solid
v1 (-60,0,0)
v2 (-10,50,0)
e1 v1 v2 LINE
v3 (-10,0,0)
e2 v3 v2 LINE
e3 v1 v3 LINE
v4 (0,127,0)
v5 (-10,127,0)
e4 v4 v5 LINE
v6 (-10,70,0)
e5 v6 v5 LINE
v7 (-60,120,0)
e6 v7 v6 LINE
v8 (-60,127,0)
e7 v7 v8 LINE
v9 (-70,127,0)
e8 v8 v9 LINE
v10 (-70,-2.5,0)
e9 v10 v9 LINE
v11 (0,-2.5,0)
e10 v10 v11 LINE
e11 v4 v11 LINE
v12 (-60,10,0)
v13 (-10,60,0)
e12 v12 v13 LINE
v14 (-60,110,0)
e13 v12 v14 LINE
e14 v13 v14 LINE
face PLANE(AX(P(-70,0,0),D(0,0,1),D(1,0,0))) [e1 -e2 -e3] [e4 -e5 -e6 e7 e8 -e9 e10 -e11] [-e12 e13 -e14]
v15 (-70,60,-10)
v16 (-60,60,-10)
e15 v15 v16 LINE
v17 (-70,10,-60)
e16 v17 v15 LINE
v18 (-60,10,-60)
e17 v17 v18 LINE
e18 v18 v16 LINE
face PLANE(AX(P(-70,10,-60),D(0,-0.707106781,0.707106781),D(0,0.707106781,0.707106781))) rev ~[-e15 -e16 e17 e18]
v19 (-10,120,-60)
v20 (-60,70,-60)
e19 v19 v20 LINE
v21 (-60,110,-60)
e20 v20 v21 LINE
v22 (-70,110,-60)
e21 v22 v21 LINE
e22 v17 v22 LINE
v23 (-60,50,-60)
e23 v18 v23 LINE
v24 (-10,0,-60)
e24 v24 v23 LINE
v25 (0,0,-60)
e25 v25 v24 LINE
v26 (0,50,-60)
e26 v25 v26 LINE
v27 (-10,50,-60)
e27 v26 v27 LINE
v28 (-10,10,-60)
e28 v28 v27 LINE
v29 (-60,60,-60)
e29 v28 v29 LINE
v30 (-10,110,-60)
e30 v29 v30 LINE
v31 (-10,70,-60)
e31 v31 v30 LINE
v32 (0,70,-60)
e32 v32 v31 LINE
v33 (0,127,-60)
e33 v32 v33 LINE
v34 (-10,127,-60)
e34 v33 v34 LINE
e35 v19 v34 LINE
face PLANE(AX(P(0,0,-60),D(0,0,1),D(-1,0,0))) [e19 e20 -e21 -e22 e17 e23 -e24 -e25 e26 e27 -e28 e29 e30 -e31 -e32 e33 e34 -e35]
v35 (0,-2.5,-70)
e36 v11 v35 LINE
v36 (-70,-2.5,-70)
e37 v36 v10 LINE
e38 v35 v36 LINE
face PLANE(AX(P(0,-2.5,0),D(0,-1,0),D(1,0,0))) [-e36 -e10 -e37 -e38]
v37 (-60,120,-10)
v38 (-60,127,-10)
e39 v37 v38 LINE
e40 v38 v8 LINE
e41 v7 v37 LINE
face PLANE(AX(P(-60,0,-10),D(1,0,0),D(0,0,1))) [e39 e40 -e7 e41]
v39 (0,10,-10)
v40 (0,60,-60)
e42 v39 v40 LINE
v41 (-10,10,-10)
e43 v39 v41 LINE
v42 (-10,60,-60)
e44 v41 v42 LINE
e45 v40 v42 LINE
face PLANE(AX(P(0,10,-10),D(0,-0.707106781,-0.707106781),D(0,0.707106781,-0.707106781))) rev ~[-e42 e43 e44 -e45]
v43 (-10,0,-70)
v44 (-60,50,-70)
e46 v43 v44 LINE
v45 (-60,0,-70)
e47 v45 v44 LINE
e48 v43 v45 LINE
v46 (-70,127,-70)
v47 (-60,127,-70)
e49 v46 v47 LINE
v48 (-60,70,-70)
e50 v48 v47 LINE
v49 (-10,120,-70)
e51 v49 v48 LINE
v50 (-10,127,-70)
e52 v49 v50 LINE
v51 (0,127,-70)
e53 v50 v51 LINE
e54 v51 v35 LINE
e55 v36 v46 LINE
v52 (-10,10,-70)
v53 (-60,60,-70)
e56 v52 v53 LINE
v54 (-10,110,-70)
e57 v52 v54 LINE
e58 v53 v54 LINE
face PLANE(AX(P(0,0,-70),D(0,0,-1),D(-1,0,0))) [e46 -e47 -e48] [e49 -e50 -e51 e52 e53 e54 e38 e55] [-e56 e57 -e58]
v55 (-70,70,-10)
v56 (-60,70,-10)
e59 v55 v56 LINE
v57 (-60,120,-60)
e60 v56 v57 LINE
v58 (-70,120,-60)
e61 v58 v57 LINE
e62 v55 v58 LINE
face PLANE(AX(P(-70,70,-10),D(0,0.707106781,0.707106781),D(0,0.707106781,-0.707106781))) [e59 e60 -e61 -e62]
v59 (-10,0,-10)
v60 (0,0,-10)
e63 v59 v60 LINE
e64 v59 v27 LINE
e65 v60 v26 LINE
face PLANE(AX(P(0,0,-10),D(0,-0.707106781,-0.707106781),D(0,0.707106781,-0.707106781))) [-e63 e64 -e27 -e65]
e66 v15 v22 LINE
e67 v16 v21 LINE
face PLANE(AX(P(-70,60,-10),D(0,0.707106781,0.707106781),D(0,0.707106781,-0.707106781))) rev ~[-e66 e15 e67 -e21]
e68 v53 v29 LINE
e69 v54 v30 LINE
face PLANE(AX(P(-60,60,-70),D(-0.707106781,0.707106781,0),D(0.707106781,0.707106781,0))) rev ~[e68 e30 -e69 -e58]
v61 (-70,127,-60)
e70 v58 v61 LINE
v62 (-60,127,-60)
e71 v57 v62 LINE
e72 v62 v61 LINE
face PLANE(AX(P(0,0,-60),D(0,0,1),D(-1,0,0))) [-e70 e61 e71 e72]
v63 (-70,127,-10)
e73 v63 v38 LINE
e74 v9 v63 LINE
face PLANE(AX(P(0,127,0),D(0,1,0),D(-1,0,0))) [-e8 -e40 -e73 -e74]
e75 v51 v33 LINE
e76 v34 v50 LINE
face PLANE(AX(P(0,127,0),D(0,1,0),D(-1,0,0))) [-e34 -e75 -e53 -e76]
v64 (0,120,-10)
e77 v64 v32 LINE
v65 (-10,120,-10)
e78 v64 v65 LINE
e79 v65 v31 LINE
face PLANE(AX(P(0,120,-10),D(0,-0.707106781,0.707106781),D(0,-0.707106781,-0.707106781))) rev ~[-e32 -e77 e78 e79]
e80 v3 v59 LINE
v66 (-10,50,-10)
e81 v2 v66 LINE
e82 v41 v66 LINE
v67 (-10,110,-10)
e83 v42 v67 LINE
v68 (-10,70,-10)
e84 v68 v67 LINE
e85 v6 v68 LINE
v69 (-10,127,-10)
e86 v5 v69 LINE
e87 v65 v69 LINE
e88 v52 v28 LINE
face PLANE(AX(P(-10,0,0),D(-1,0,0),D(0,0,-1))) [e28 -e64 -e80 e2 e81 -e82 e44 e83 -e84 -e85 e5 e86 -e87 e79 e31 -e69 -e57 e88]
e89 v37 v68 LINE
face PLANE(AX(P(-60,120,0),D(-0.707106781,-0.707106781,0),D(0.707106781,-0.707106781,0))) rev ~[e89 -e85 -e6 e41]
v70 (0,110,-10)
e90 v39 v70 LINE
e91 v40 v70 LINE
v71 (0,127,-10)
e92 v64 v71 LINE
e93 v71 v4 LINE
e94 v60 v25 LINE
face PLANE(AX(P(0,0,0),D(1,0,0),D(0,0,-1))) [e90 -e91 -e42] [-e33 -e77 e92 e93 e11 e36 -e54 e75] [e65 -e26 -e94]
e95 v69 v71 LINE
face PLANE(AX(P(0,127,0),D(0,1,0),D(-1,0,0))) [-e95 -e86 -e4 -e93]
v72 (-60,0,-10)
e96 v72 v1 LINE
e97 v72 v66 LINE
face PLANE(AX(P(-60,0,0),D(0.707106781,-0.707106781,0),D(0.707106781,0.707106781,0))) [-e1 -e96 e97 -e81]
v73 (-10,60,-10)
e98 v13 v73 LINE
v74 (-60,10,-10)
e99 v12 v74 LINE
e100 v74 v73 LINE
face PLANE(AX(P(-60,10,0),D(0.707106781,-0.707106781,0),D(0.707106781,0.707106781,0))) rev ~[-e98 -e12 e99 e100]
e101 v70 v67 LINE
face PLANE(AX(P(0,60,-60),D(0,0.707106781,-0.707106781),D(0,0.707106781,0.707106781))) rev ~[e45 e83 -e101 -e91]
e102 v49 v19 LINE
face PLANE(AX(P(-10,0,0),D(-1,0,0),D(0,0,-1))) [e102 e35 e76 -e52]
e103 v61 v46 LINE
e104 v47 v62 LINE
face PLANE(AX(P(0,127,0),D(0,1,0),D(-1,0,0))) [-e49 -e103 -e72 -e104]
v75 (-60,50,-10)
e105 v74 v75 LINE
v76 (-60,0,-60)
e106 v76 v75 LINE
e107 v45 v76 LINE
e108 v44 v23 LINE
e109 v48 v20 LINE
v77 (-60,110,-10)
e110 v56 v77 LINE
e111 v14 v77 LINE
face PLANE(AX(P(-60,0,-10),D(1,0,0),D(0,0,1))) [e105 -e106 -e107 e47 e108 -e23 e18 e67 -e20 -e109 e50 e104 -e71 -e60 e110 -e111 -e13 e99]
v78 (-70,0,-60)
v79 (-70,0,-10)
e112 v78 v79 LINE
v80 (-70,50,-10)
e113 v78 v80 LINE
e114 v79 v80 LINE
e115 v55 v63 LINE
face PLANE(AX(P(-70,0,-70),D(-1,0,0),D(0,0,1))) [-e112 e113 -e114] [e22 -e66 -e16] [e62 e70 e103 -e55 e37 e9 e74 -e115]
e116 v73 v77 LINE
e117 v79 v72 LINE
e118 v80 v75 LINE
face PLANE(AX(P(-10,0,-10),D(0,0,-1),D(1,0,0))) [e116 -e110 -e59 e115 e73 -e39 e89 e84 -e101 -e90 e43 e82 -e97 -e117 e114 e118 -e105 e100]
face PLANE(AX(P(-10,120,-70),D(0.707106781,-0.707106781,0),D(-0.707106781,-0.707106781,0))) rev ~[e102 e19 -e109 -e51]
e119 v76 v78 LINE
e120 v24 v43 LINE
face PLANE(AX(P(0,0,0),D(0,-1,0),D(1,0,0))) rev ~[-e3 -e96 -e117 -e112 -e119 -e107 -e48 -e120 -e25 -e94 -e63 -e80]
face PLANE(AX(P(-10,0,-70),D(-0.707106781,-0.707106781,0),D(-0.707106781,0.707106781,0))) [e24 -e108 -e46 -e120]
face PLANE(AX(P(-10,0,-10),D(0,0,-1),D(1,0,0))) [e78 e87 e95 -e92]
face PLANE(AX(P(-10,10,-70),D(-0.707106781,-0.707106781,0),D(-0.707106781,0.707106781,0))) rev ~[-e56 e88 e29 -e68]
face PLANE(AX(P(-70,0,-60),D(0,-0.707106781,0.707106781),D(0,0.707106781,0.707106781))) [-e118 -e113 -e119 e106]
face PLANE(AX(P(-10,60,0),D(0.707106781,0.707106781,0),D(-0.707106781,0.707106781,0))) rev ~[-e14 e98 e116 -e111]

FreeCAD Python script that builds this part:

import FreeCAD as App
import Part
import Sketcher


def add_polygon(sketch, points):
    """Adds a closed chain of lines whose ends are joined by coincident constraints."""
    first, n = sketch.GeometryCount, len(points)
    for a, b in zip(points, points[1:] + points[:1]):
        sketch.addGeometry(Part.LineSegment(App.Vector(*a, 0), App.Vector(*b, 0)), False)
    for i in range(n):
        sketch.addConstraint(Sketcher.Constraint("Coincident", first + i, 2, first + (i + 1) % n, 1))

doc = App.newDocument("Part")
body = doc.addObject("PartDesign::Body", "Body")
body.AllowCompound = True

sketch1 = body.newObject("Sketcher::SketchObject", "Sketch")
sketch1.AttachmentSupport = (doc.getObject("XZ_Plane"), [""])
sketch1.MapMode = "FlatFace"
add_polygon(sketch1, [(-10, 0), (0, 0), (0, -10), (-10, -10)])
add_polygon(sketch1, [(-60, -10), (-70, -10), (-70, 0), (-60, 0)])
add_polygon(sketch1, [(-60, -70), (-70, -70), (-70, -60), (-60, -60)])
add_polygon(sketch1, [(0, -70), (-10, -70), (-10, -60), (0, -60)])
sketch1.addConstraint(Sketcher.Constraint("Horizontal", 0))
sketch1.addConstraint(Sketcher.Constraint("Vertical", 1))
sketch1.addConstraint(Sketcher.Constraint("Horizontal", 2))
sketch1.addConstraint(Sketcher.Constraint("Vertical", 3))
sketch1.addConstraint(Sketcher.Constraint("Horizontal", 4))
sketch1.addConstraint(Sketcher.Constraint("Vertical", 5))
sketch1.addConstraint(Sketcher.Constraint("Horizontal", 6))
sketch1.addConstraint(Sketcher.Constraint("Vertical", 7))
sketch1.addConstraint(Sketcher.Constraint("Horizontal", 8))
sketch1.addConstraint(Sketcher.Constraint("Vertical", 9))
sketch1.addConstraint(Sketcher.Constraint("Horizontal", 10))
sketch1.addConstraint(Sketcher.Constraint("Vertical", 11))
sketch1.addConstraint(Sketcher.Constraint("Horizontal", 12))
sketch1.addConstraint(Sketcher.Constraint("Vertical", 13))
sketch1.addConstraint(Sketcher.Constraint("Horizontal", 14))
sketch1.addConstraint(Sketcher.Constraint("Vertical", 15))
sketch1.addConstraint(Sketcher.Constraint("Coincident", 0, 2, -1, 1))
sketch1.addConstraint(Sketcher.Constraint("PointOnObject", 5, 2, -1))
sketch1.addConstraint(Sketcher.Constraint("PointOnObject", 14, 2, -2))
sketch1.addConstraint(Sketcher.Constraint("Horizontal", 2, 2, 4, 2))
sketch1.addConstraint(Sketcher.Constraint("Horizontal", 11, 2, 12, 2))
sketch1.addConstraint(Sketcher.Constraint("Horizontal", 10, 2, 13, 2))
sketch1.addConstraint(Sketcher.Constraint("Vertical", 5, 2, 8, 2))
sketch1.addConstraint(Sketcher.Constraint("Vertical", 7, 2, 10, 2))
sketch1.addConstraint(Sketcher.Constraint("Vertical", 3, 2, 12, 2))
sketch1.addConstraint(Sketcher.Constraint("Equal", 2, 4))
sketch1.addConstraint(Sketcher.Constraint("Equal", 14, 1))
sketch1.addConstraint(Sketcher.Constraint("Equal", 7, 9))
sketch1.addConstraint(Sketcher.Constraint("DistanceX", 0, 1, 0, 2, 10.0))
sketch1.addConstraint(Sketcher.Constraint("DistanceX", 6, 2, 3, 2, 50.0))
sketch1.addConstraint(Sketcher.Constraint("DistanceY", 9, 2, 4, 2, 50.0))
pad1 = body.newObject("PartDesign::Pad", "Pad")
pad1.Profile = sketch1
pad1.Length = 127
pad1.Reversed = True

sketch2 = body.newObject("Sketcher::SketchObject", "Sketch001")
sketch2.AttachmentSupport = (doc.getObject("XY_Plane"), [""])
sketch2.MapMode = "FlatFace"
add_polygon(sketch2, [(-60, 10), (-60, 0), (-10, 50), (-10, 60)])
add_polygon(sketch2, [(-60, 110), (-10, 60), (-10, 70), (-60, 120)])
sketch2.addConstraint(Sketcher.Constraint("Vertical", 0))
sketch2.addConstraint(Sketcher.Constraint("Vertical", 2))
sketch2.addConstraint(Sketcher.Constraint("Vertical", 5))
sketch2.addConstraint(Sketcher.Constraint("Vertical", 7))
sketch2.addConstraint(Sketcher.Constraint("Coincident", 4, 2, 2, 2))
sketch2.addConstraint(Sketcher.Constraint("PointOnObject", 0, 2, -1))
sketch2.addConstraint(Sketcher.Constraint("Parallel", 1, 3))
sketch2.addConstraint(Sketcher.Constraint("Perpendicular", 3, 4))
sketch2.addConstraint(Sketcher.Constraint("Parallel", 4, 6))
sketch2.addConstraint(Sketcher.Constraint("Vertical", 3, 2, 6, 2))
sketch2.addConstraint(Sketcher.Constraint("Equal", 2, 5))
sketch2.addConstraint(Sketcher.Constraint("Equal", 3, 4))
sketch2.addConstraint(Sketcher.Constraint("DistanceY", 0, 2, 0, 1, 10.0))
sketch2.addConstraint(Sketcher.Constraint("DistanceX", 1, 2, -1, 1, 10.0))
sketch2.addConstraint(Sketcher.Constraint("DistanceX", 0, 2, -1, 1, 60.0))
pad2 = body.newObject("PartDesign::Pad", "Pad001")
pad2.Profile = sketch2
pad2.Length = 10
pad2.Reversed = True

sketch3 = body.newObject("Sketcher::SketchObject", "Sketch002")
sketch3.AttachmentSupport = (doc.getObject("YZ_Plane"), [""])
sketch3.MapMode = "FlatFace"
add_polygon(sketch3, [(10, -10), (0, -10), (50, -60), (60, -60)])
add_polygon(sketch3, [(110, -10), (60, -60), (70, -60), (120, -10)])
sketch3.addConstraint(Sketcher.Constraint("Horizontal", 0))
sketch3.addConstraint(Sketcher.Constraint("Horizontal", 2))
sketch3.addConstraint(Sketcher.Constraint("Horizontal", 5))
sketch3.addConstraint(Sketcher.Constraint("Horizontal", 7))
sketch3.addConstraint(Sketcher.Constraint("Coincident", 4, 2, 2, 2))
sketch3.addConstraint(Sketcher.Constraint("PointOnObject", 0, 2, -2))
sketch3.addConstraint(Sketcher.Constraint("Parallel", 1, 3))
sketch3.addConstraint(Sketcher.Constraint("Perpendicular", 3, 4))
sketch3.addConstraint(Sketcher.Constraint("Parallel", 4, 6))
sketch3.addConstraint(Sketcher.Constraint("Horizontal", 3, 2, 6, 2))
sketch3.addConstraint(Sketcher.Constraint("Equal", 2, 5))
sketch3.addConstraint(Sketcher.Constraint("Equal", 3, 4))
sketch3.addConstraint(Sketcher.Constraint("DistanceX", 0, 2, 0, 1, 10.0))
sketch3.addConstraint(Sketcher.Constraint("DistanceY", 0, 2, -1, 1, 10.0))
sketch3.addConstraint(Sketcher.Constraint("DistanceX", -1, 1, 1, 2, 50.0))
pad3 = body.newObject("PartDesign::Pad", "Pad002")
pad3.Profile = sketch3
pad3.Length = 10
pad3.Reversed = True

sketch4 = body.newObject("Sketcher::SketchObject", "Sketch003")
sketch4.AttachmentSupport = (doc.getObject("XY_Plane"), [""])
sketch4.MapMode = "FlatFace"
sketch4.AttachmentOffset = App.Placement(App.Vector(0, 0, -70), App.Rotation())
add_polygon(sketch4, [(-10, 10), (-10, 0), (-60, 50), (-60, 60)])
add_polygon(sketch4, [(-10, 110), (-60, 60), (-60, 70), (-10, 120)])
sketch4.addConstraint(Sketcher.Constraint("Vertical", 0))
sketch4.addConstraint(Sketcher.Constraint("Vertical", 2))
sketch4.addConstraint(Sketcher.Constraint("Vertical", 5))
sketch4.addConstraint(Sketcher.Constraint("Vertical", 7))
sketch4.addConstraint(Sketcher.Constraint("Coincident", 4, 2, 2, 2))
sketch4.addConstraint(Sketcher.Constraint("PointOnObject", 0, 2, -1))
sketch4.addConstraint(Sketcher.Constraint("Parallel", 1, 3))
sketch4.addConstraint(Sketcher.Constraint("Perpendicular", 3, 4))
sketch4.addConstraint(Sketcher.Constraint("Parallel", 4, 6))
sketch4.addConstraint(Sketcher.Constraint("Vertical", 3, 2, 6, 2))
sketch4.addConstraint(Sketcher.Constraint("Equal", 2, 5))
sketch4.addConstraint(Sketcher.Constraint("Equal", 3, 4))
sketch4.addConstraint(Sketcher.Constraint("DistanceY", 0, 2, 0, 1, 10.0))
sketch4.addConstraint(Sketcher.Constraint("DistanceX", 0, 2, -1, 1, 10.0))
sketch4.addConstraint(Sketcher.Constraint("DistanceX", 1, 2, -1, 1, 60.0))
pad4 = body.newObject("PartDesign::Pad", "Pad003")
pad4.Profile = sketch4
pad4.Length = 10

sketch5 = body.newObject("Sketcher::SketchObject", "Sketch004")
sketch5.AttachmentSupport = (doc.getObject("YZ_Plane"), [""])
sketch5.MapMode = "FlatFace"
sketch5.AttachmentOffset = App.Placement(App.Vector(0, 0, -70), App.Rotation())
add_polygon(sketch5, [(10, -60), (0, -60), (50, -10), (60, -10)])
add_polygon(sketch5, [(110, -60), (60, -10), (70, -10), (120, -60)])
sketch5.addConstraint(Sketcher.Constraint("Horizontal", 0))
sketch5.addConstraint(Sketcher.Constraint("Horizontal", 2))
sketch5.addConstraint(Sketcher.Constraint("Horizontal", 5))
sketch5.addConstraint(Sketcher.Constraint("Horizontal", 7))
sketch5.addConstraint(Sketcher.Constraint("Coincident", 4, 2, 2, 2))
sketch5.addConstraint(Sketcher.Constraint("PointOnObject", 0, 2, -2))
sketch5.addConstraint(Sketcher.Constraint("Parallel", 1, 3))
sketch5.addConstraint(Sketcher.Constraint("Perpendicular", 3, 4))
sketch5.addConstraint(Sketcher.Constraint("Parallel", 4, 6))
sketch5.addConstraint(Sketcher.Constraint("Horizontal", 3, 2, 6, 2))
sketch5.addConstraint(Sketcher.Constraint("Equal", 2, 5))
sketch5.addConstraint(Sketcher.Constraint("Equal", 3, 4))
sketch5.addConstraint(Sketcher.Constraint("DistanceX", 0, 2, 0, 1, 10.0))
sketch5.addConstraint(Sketcher.Constraint("DistanceY", 1, 2, -1, 1, 10.0))
sketch5.addConstraint(Sketcher.Constraint("DistanceY", 0, 2, -1, 1, 60.0))
pad5 = body.newObject("PartDesign::Pad", "Pad004")
pad5.Profile = sketch5
pad5.Length = 10

sketch6 = body.newObject("Sketcher::SketchObject", "Sketch005")
sketch6.AttachmentSupport = (doc.getObject("XZ_Plane"), [""])
sketch6.MapMode = "FlatFace"
add_polygon(sketch6, [(-70, -70), (0, -70), (0, 0), (-70, 0)])
sketch6.addConstraint(Sketcher.Constraint("Horizontal", 0))
sketch6.addConstraint(Sketcher.Constraint("Vertical", 1))
sketch6.addConstraint(Sketcher.Constraint("Horizontal", 2))
sketch6.addConstraint(Sketcher.Constraint("Vertical", 3))
sketch6.addConstraint(Sketcher.Constraint("Coincident", 1, 2, -1, 1))
sketch6.addConstraint(Sketcher.Constraint("Equal", 2, 1))
sketch6.addConstraint(Sketcher.Constraint("DistanceX", 0, 1, 0, 2, 70.0))
pad6 = body.newObject("PartDesign::Pad", "Pad005")
pad6.Profile = sketch6
pad6.Length = 2.5

doc.recompute()
